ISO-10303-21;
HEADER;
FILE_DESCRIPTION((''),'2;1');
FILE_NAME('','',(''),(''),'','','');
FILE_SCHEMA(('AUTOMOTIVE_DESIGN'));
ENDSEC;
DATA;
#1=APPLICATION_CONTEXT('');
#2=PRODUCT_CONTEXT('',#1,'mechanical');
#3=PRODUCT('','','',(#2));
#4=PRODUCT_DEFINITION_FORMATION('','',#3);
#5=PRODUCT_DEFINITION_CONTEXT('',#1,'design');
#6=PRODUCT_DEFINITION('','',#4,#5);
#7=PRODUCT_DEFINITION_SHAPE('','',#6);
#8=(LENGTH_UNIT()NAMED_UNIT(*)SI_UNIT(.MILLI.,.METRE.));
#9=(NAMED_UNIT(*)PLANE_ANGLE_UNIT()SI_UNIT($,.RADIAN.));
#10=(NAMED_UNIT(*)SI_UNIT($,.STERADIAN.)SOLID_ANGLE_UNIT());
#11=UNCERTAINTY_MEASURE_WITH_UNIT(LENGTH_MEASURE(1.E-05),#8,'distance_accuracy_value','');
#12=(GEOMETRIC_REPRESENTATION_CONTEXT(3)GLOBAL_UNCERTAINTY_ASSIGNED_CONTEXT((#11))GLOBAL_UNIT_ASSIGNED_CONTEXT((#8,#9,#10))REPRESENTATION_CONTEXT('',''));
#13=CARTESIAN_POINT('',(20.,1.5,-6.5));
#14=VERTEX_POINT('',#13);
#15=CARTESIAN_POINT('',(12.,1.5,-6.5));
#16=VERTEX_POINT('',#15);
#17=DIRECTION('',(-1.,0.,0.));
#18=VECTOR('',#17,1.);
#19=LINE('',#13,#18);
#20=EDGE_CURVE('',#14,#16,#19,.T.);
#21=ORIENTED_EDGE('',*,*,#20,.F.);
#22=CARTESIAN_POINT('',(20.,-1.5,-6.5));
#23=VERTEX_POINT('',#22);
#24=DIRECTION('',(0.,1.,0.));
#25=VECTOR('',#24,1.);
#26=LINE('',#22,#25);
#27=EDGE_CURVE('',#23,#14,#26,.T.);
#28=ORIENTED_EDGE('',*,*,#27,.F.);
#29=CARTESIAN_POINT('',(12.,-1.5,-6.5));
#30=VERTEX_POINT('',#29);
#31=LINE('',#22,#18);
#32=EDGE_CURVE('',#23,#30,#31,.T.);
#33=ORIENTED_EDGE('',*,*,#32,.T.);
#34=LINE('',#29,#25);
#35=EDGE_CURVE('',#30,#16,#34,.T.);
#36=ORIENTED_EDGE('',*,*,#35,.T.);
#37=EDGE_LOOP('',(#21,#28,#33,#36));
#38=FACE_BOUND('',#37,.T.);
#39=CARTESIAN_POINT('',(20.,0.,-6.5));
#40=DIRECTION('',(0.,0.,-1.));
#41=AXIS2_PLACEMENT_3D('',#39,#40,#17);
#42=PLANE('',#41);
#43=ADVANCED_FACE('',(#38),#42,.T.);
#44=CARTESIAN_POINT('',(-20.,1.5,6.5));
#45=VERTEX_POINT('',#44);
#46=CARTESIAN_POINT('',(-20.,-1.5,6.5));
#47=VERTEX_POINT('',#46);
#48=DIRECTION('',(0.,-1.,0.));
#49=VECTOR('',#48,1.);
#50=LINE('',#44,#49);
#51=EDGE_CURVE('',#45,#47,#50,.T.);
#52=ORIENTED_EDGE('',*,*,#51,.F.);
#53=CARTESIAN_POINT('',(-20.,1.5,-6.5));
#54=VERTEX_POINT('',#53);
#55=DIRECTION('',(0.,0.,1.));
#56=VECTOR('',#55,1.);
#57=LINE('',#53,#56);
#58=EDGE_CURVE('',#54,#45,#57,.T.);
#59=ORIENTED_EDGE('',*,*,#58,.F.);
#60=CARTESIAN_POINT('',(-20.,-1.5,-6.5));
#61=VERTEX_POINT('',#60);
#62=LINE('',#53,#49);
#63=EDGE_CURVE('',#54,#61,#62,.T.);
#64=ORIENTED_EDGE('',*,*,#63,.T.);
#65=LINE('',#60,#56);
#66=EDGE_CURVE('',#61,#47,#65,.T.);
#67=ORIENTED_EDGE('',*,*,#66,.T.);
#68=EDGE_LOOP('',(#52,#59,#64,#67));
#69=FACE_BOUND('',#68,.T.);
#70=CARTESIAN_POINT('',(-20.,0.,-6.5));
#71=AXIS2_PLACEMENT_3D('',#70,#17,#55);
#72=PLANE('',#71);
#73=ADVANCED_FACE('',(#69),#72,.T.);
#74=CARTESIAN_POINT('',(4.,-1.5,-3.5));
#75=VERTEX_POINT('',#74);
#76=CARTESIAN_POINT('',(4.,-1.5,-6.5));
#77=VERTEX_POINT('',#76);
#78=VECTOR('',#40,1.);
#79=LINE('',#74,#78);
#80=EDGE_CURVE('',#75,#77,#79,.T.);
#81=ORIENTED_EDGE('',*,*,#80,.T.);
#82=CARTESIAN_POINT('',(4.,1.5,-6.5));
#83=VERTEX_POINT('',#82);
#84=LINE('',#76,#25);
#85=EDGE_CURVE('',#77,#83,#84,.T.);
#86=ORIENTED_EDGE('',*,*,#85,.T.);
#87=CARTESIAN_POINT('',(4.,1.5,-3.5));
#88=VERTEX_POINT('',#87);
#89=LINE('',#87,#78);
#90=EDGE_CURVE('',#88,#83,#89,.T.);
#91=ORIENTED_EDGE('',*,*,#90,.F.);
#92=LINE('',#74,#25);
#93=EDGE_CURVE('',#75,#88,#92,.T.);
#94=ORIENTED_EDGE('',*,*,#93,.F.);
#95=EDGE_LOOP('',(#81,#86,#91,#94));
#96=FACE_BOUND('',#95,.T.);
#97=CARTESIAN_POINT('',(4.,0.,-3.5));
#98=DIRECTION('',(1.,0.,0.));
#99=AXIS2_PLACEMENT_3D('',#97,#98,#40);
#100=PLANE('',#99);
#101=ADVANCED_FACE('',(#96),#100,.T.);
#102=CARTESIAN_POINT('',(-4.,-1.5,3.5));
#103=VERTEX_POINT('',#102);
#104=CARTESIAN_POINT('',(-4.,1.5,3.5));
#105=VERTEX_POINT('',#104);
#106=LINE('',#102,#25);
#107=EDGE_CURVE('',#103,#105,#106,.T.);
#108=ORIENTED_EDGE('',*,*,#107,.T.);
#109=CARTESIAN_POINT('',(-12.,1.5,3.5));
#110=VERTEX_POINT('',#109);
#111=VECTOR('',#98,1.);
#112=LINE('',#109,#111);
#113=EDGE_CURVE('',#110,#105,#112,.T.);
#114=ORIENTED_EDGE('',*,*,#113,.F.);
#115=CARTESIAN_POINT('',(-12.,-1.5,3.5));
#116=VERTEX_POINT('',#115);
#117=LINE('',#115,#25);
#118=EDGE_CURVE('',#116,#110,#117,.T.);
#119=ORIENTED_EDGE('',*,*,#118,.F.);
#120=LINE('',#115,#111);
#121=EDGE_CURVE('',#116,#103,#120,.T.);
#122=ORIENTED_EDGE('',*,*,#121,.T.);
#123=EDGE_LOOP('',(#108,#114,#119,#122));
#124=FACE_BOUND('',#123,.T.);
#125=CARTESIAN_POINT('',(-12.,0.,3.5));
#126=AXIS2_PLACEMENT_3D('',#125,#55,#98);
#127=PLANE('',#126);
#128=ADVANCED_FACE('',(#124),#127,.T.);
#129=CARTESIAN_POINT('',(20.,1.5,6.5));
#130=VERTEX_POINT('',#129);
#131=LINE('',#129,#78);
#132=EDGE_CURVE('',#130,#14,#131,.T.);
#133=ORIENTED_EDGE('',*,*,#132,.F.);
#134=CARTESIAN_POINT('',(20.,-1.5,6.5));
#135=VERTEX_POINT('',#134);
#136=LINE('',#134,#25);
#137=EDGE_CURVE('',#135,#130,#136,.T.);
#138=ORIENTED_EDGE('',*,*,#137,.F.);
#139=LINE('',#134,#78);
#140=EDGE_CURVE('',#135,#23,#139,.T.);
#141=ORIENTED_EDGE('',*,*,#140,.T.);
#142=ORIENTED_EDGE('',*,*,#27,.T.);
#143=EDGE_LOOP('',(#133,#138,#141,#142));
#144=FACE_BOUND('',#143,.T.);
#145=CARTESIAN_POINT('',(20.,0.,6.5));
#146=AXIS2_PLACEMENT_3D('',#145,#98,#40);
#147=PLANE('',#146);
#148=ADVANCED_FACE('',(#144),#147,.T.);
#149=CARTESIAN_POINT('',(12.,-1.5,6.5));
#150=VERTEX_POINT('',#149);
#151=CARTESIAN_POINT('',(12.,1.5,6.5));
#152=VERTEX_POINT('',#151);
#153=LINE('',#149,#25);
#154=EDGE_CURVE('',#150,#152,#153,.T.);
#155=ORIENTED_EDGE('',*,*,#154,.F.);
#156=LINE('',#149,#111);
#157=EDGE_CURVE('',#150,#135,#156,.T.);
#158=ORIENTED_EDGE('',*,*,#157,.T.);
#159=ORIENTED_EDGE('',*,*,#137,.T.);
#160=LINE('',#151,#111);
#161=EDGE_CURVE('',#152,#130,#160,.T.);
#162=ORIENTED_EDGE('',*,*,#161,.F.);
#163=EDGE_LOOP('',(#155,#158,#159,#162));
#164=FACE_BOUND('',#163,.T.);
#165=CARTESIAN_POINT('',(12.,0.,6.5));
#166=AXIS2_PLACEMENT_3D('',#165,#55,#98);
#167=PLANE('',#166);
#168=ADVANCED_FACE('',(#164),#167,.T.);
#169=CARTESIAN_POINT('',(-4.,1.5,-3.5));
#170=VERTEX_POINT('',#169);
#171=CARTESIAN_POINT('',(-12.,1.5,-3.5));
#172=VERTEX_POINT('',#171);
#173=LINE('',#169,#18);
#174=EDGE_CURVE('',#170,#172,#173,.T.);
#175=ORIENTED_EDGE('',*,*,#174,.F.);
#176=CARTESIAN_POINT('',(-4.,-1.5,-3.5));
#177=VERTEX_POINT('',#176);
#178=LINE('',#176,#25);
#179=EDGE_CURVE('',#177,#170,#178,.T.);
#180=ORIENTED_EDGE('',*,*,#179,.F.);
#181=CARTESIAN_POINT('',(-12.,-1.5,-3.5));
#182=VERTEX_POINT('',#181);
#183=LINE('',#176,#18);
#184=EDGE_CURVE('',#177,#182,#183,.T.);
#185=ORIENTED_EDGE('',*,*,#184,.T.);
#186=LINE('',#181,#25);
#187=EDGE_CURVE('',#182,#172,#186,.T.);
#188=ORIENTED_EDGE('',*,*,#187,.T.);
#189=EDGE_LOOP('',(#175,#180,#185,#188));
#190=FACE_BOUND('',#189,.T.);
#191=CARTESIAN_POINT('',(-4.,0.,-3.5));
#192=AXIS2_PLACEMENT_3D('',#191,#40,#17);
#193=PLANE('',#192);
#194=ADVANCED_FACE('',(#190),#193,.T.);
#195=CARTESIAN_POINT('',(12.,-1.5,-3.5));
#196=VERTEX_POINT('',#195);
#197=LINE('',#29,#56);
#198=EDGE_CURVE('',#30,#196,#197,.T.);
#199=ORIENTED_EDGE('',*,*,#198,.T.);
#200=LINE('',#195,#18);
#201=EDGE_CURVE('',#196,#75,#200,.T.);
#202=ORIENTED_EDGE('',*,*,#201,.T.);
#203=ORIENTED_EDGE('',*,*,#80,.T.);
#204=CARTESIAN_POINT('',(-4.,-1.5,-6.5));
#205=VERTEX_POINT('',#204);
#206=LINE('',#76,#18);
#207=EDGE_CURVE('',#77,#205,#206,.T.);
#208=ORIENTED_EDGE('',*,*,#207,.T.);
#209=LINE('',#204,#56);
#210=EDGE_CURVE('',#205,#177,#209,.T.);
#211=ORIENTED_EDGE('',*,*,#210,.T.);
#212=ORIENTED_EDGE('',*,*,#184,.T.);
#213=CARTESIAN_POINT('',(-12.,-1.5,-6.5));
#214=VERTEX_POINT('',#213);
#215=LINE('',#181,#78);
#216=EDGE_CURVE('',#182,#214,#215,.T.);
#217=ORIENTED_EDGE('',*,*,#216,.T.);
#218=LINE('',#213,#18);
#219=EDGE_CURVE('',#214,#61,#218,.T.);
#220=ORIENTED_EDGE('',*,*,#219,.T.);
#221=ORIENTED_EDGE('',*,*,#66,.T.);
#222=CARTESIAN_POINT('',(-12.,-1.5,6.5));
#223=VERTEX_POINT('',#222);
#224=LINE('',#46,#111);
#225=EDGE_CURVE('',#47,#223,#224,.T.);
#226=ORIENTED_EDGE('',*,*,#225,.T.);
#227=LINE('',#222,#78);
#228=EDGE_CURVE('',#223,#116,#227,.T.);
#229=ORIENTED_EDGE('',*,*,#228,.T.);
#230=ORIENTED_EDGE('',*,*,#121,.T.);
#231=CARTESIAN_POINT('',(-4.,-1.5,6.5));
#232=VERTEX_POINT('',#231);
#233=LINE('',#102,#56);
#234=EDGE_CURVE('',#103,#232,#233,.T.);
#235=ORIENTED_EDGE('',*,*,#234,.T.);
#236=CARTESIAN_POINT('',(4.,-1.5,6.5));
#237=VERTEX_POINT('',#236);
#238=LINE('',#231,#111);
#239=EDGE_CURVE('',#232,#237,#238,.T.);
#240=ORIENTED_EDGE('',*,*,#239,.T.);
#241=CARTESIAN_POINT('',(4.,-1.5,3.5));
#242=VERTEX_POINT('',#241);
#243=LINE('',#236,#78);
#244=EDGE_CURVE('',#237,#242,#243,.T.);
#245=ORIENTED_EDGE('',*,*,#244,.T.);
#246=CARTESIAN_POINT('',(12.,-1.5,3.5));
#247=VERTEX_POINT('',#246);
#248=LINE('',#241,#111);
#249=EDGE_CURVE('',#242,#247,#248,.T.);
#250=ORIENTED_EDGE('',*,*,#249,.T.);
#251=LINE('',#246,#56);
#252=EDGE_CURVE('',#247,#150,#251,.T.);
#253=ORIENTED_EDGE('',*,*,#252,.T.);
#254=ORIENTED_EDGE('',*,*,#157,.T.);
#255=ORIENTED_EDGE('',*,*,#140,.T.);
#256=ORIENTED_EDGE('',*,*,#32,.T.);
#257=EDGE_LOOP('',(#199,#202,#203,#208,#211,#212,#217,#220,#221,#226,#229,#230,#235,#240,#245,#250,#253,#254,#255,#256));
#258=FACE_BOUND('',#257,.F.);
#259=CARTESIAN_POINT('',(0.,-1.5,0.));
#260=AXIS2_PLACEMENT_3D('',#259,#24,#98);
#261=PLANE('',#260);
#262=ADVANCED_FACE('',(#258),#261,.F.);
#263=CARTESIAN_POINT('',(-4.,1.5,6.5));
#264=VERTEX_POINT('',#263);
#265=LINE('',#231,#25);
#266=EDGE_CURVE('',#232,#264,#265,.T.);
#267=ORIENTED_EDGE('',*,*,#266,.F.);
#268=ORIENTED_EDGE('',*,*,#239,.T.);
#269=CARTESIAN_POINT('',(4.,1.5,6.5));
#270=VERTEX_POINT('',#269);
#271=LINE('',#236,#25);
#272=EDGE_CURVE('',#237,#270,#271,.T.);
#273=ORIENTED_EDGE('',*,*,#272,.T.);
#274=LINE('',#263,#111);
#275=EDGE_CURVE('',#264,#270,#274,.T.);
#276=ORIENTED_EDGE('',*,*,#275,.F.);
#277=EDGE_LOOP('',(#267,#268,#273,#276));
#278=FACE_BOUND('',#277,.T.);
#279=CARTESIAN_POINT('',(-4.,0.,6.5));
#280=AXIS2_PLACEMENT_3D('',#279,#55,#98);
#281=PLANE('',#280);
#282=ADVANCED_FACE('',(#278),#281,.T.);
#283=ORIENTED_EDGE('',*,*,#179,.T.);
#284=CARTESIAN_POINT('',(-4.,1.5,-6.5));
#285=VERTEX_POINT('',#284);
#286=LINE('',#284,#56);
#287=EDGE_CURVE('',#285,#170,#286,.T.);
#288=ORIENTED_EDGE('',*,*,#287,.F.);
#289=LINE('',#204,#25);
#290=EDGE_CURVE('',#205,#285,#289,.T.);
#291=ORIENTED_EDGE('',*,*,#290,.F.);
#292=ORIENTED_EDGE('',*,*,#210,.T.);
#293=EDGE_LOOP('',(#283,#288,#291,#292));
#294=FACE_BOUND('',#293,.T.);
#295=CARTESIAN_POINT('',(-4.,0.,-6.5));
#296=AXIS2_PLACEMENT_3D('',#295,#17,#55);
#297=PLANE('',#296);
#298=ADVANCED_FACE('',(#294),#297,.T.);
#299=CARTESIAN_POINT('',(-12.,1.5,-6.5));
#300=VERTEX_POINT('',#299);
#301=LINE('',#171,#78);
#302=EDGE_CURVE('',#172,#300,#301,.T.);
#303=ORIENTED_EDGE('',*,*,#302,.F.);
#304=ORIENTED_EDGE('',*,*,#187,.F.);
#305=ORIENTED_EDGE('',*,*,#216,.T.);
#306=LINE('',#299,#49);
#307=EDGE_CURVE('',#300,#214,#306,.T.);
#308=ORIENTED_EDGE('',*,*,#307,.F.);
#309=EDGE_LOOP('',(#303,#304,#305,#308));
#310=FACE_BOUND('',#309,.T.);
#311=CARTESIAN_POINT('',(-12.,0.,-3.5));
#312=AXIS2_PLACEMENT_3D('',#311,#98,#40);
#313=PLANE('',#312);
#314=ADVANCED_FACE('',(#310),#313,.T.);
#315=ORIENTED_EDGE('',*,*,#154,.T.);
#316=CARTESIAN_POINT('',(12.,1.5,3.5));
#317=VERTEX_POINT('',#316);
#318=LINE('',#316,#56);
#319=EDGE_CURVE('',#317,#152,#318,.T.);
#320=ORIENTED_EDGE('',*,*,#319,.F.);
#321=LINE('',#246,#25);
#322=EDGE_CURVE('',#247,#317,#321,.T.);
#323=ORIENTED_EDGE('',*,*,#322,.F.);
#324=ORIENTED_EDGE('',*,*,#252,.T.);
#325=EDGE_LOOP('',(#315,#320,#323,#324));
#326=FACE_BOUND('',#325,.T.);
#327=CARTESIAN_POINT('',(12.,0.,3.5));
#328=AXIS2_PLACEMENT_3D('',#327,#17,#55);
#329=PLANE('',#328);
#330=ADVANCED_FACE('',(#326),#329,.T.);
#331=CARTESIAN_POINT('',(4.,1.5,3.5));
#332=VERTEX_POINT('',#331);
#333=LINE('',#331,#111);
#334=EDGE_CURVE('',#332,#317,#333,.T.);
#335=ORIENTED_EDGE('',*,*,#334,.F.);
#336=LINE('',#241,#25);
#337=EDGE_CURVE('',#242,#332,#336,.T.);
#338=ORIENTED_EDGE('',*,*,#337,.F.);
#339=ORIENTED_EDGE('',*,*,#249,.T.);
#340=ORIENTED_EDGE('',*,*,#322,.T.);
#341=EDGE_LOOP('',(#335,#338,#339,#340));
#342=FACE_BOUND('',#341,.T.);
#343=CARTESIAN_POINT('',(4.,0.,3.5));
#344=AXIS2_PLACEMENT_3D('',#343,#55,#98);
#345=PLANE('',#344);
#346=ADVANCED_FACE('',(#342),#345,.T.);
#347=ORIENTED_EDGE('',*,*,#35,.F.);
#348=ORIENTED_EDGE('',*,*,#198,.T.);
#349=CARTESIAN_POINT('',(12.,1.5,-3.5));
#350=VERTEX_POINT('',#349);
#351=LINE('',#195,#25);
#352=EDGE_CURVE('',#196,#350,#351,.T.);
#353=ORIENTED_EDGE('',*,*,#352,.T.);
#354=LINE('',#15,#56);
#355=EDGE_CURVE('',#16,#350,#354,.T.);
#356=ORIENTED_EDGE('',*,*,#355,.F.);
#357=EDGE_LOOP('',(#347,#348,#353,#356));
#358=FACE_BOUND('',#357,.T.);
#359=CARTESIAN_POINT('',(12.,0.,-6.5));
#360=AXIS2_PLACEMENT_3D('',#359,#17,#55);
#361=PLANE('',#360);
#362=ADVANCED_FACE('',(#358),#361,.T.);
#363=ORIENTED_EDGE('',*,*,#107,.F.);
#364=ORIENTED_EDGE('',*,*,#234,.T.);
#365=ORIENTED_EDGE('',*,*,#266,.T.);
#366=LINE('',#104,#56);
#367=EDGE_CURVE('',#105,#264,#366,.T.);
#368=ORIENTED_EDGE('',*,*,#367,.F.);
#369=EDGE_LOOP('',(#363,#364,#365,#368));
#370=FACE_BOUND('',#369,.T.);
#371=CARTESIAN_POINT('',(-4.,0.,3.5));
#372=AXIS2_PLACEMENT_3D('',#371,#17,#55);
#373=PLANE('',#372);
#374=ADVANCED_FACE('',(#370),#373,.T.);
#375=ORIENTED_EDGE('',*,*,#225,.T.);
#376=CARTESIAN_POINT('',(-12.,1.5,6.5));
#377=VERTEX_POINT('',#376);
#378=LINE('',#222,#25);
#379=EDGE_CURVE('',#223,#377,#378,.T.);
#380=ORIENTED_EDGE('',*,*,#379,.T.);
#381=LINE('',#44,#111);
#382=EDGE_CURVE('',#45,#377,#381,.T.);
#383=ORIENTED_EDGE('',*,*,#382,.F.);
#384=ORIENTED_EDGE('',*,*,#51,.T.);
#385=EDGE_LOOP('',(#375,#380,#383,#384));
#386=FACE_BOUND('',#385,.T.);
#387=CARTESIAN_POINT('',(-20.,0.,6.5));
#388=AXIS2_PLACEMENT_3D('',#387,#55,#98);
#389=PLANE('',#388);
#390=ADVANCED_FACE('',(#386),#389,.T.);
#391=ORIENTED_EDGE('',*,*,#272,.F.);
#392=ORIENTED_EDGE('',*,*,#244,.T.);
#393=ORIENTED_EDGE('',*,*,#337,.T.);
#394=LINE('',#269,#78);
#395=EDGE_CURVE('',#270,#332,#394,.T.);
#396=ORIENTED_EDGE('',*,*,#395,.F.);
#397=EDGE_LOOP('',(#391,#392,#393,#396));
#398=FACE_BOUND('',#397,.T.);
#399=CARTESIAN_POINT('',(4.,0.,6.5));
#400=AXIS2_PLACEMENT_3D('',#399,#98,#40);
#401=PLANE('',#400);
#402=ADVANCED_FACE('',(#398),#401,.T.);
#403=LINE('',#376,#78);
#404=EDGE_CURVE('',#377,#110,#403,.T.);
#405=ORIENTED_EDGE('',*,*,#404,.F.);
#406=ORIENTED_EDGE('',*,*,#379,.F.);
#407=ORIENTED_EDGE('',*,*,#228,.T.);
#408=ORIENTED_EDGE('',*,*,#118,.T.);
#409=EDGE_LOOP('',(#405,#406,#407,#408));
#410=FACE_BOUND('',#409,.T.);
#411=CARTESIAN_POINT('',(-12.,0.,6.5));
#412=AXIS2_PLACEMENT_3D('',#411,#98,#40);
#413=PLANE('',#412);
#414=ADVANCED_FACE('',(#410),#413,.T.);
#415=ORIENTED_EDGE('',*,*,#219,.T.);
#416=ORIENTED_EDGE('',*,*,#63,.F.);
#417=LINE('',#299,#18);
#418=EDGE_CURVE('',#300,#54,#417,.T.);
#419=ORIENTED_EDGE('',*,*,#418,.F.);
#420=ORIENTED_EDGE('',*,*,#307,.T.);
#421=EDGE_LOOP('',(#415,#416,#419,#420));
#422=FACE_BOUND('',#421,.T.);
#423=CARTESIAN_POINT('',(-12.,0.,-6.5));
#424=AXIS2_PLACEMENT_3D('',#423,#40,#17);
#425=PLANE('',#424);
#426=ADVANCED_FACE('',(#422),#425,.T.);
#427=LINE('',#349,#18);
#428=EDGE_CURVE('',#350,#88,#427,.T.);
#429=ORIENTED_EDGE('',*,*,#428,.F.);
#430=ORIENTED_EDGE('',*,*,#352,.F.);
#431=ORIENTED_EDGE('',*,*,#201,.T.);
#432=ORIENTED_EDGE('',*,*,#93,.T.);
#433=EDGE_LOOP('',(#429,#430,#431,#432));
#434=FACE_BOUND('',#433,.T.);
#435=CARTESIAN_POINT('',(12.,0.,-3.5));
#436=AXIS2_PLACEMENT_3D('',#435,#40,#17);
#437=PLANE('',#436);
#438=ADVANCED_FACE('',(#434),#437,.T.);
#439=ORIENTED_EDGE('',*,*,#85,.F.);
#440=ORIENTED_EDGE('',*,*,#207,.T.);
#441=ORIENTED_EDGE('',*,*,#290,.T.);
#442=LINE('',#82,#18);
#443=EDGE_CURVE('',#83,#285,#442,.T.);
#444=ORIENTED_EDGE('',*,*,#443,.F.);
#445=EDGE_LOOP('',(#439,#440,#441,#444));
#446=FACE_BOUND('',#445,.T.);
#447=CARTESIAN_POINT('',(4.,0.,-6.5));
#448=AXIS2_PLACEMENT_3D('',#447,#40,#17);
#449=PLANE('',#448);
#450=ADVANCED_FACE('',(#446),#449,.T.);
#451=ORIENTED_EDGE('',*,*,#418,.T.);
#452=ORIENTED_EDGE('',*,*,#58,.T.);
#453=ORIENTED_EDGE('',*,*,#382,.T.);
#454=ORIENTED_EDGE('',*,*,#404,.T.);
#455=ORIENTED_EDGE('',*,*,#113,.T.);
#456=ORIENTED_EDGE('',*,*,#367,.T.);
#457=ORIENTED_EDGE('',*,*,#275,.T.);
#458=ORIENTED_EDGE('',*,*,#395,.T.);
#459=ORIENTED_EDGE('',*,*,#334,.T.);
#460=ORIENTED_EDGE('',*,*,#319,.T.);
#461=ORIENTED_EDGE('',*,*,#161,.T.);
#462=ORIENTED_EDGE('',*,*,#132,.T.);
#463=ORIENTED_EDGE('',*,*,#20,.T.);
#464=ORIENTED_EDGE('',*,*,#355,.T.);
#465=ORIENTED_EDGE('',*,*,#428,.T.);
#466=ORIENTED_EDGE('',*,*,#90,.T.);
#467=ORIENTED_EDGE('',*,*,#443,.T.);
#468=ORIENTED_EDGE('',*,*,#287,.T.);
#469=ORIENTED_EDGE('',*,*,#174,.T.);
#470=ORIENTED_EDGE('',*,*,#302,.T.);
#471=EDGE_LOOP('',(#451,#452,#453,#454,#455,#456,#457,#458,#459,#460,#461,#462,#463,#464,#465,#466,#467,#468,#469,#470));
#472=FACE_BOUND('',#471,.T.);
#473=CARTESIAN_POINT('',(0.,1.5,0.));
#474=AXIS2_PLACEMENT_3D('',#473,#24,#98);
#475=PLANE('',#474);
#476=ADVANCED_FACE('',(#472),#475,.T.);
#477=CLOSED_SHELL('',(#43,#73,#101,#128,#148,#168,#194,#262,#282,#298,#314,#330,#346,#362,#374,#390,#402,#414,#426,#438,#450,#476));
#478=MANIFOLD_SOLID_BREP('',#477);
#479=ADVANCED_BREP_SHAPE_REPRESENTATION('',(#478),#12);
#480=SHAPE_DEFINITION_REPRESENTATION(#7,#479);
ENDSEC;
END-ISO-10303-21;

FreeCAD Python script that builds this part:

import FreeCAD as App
import Part
import Sketcher


def add_polygon(sketch, points):
    """Adds a closed chain of lines whose ends are joined by coincident constraints."""
    first, n = sketch.GeometryCount, len(points)
    for a, b in zip(points, points[1:] + points[:1]):
        sketch.addGeometry(Part.LineSegment(App.Vector(*a, 0), App.Vector(*b, 0)), False)
    for i in range(n):
        sketch.addConstraint(Sketcher.Constraint("Coincident", first + i, 2, first + (i + 1) % n, 1))

doc = App.newDocument("Part")
body = doc.addObject("PartDesign::Body", "Body")

# Sketch on XZ plane
sketch1 = body.newObject("Sketcher::SketchObject", "Sketch")
sketch1.AttachmentSupport = (doc.getObject("XZ_Plane"), [""])
sketch1.MapMode = "FlatFace"
add_polygon(sketch1, [(-20, 6.5), (-12, 6.5), (-12, 3.5), (-4, 3.5), (-4, 6.5), (4, 6.5), (4, 3.5), (12, 3.5), (12, 6.5), (20, 6.5), (20, -6.5), (12, -6.5), (12, -3.5), (4, -3.5), (4, -6.5), (-4, -6.5), (-4, -3.5), (-12, -3.5), (-12, -6.5), (-20, -6.5)])  # lines 0-19
sketch1.addConstraint(Sketcher.Constraint("Horizontal", 0))
sketch1.addConstraint(Sketcher.Constraint("Vertical", 1))
sketch1.addConstraint(Sketcher.Constraint("Horizontal", 2))
sketch1.addConstraint(Sketcher.Constraint("Vertical", 3))
sketch1.addConstraint(Sketcher.Constraint("Horizontal", 4))
sketch1.addConstraint(Sketcher.Constraint("Vertical", 5))
sketch1.addConstraint(Sketcher.Constraint("Horizontal", 6))
sketch1.addConstraint(Sketcher.Constraint("Vertical", 7))
sketch1.addConstraint(Sketcher.Constraint("Horizontal", 8))
sketch1.addConstraint(Sketcher.Constraint("Vertical", 9))
sketch1.addConstraint(Sketcher.Constraint("Horizontal", 10))
sketch1.addConstraint(Sketcher.Constraint("Vertical", 11))
sketch1.addConstraint(Sketcher.Constraint("Horizontal", 12))
sketch1.addConstraint(Sketcher.Constraint("Vertical", 13))
sketch1.addConstraint(Sketcher.Constraint("Horizontal", 14))
sketch1.addConstraint(Sketcher.Constraint("Vertical", 15))
sketch1.addConstraint(Sketcher.Constraint("Horizontal", 16))
sketch1.addConstraint(Sketcher.Constraint("Vertical", 17))
sketch1.addConstraint(Sketcher.Constraint("Horizontal", 18))
sketch1.addConstraint(Sketcher.Constraint("Vertical", 19))
sketch1.addConstraint(Sketcher.Constraint("Symmetric", 0, 2, 10, 2, -1, 1))
sketch1.addConstraint(Sketcher.Constraint("Symmetric", 2, 2, 12, 2, -1, 1))
sketch1.addConstraint(Sketcher.Constraint("Symmetric", 4, 2, 14, 2, -1, 1))
sketch1.addConstraint(Sketcher.Constraint("Symmetric", 6, 2, 16, 2, -1, 1))
sketch1.addConstraint(Sketcher.Constraint("Symmetric", 8, 2, 18, 2, -1, 1))
sketch1.addConstraint(Sketcher.Constraint("Symmetric", 2, 2, 5, 2, -2))
sketch1.addConstraint(Sketcher.Constraint("Symmetric", 0, 2, 7, 2, -2))
sketch1.addConstraint(Sketcher.Constraint("Horizontal", 0, 2, 3, 2))
sketch1.addConstraint(Sketcher.Constraint("Equal", 0, 2))
sketch1.addConstraint(Sketcher.Constraint("Equal", 2, 4))
sketch1.addConstraint(Sketcher.Constraint("DistanceX", 0, 1, 0, 2, 8.0))
sketch1.addConstraint(Sketcher.Constraint("DistanceY", 1, 2, 1, 1, 3.0))
sketch1.addConstraint(Sketcher.Constraint("DistanceY", 9, 2, 9, 1, 13.0))
pad1 = body.newObject("PartDesign::Pad", "Pad")
pad1.Profile = sketch1
pad1.Length = 3
pad1.Midplane = True

doc.recompute()
